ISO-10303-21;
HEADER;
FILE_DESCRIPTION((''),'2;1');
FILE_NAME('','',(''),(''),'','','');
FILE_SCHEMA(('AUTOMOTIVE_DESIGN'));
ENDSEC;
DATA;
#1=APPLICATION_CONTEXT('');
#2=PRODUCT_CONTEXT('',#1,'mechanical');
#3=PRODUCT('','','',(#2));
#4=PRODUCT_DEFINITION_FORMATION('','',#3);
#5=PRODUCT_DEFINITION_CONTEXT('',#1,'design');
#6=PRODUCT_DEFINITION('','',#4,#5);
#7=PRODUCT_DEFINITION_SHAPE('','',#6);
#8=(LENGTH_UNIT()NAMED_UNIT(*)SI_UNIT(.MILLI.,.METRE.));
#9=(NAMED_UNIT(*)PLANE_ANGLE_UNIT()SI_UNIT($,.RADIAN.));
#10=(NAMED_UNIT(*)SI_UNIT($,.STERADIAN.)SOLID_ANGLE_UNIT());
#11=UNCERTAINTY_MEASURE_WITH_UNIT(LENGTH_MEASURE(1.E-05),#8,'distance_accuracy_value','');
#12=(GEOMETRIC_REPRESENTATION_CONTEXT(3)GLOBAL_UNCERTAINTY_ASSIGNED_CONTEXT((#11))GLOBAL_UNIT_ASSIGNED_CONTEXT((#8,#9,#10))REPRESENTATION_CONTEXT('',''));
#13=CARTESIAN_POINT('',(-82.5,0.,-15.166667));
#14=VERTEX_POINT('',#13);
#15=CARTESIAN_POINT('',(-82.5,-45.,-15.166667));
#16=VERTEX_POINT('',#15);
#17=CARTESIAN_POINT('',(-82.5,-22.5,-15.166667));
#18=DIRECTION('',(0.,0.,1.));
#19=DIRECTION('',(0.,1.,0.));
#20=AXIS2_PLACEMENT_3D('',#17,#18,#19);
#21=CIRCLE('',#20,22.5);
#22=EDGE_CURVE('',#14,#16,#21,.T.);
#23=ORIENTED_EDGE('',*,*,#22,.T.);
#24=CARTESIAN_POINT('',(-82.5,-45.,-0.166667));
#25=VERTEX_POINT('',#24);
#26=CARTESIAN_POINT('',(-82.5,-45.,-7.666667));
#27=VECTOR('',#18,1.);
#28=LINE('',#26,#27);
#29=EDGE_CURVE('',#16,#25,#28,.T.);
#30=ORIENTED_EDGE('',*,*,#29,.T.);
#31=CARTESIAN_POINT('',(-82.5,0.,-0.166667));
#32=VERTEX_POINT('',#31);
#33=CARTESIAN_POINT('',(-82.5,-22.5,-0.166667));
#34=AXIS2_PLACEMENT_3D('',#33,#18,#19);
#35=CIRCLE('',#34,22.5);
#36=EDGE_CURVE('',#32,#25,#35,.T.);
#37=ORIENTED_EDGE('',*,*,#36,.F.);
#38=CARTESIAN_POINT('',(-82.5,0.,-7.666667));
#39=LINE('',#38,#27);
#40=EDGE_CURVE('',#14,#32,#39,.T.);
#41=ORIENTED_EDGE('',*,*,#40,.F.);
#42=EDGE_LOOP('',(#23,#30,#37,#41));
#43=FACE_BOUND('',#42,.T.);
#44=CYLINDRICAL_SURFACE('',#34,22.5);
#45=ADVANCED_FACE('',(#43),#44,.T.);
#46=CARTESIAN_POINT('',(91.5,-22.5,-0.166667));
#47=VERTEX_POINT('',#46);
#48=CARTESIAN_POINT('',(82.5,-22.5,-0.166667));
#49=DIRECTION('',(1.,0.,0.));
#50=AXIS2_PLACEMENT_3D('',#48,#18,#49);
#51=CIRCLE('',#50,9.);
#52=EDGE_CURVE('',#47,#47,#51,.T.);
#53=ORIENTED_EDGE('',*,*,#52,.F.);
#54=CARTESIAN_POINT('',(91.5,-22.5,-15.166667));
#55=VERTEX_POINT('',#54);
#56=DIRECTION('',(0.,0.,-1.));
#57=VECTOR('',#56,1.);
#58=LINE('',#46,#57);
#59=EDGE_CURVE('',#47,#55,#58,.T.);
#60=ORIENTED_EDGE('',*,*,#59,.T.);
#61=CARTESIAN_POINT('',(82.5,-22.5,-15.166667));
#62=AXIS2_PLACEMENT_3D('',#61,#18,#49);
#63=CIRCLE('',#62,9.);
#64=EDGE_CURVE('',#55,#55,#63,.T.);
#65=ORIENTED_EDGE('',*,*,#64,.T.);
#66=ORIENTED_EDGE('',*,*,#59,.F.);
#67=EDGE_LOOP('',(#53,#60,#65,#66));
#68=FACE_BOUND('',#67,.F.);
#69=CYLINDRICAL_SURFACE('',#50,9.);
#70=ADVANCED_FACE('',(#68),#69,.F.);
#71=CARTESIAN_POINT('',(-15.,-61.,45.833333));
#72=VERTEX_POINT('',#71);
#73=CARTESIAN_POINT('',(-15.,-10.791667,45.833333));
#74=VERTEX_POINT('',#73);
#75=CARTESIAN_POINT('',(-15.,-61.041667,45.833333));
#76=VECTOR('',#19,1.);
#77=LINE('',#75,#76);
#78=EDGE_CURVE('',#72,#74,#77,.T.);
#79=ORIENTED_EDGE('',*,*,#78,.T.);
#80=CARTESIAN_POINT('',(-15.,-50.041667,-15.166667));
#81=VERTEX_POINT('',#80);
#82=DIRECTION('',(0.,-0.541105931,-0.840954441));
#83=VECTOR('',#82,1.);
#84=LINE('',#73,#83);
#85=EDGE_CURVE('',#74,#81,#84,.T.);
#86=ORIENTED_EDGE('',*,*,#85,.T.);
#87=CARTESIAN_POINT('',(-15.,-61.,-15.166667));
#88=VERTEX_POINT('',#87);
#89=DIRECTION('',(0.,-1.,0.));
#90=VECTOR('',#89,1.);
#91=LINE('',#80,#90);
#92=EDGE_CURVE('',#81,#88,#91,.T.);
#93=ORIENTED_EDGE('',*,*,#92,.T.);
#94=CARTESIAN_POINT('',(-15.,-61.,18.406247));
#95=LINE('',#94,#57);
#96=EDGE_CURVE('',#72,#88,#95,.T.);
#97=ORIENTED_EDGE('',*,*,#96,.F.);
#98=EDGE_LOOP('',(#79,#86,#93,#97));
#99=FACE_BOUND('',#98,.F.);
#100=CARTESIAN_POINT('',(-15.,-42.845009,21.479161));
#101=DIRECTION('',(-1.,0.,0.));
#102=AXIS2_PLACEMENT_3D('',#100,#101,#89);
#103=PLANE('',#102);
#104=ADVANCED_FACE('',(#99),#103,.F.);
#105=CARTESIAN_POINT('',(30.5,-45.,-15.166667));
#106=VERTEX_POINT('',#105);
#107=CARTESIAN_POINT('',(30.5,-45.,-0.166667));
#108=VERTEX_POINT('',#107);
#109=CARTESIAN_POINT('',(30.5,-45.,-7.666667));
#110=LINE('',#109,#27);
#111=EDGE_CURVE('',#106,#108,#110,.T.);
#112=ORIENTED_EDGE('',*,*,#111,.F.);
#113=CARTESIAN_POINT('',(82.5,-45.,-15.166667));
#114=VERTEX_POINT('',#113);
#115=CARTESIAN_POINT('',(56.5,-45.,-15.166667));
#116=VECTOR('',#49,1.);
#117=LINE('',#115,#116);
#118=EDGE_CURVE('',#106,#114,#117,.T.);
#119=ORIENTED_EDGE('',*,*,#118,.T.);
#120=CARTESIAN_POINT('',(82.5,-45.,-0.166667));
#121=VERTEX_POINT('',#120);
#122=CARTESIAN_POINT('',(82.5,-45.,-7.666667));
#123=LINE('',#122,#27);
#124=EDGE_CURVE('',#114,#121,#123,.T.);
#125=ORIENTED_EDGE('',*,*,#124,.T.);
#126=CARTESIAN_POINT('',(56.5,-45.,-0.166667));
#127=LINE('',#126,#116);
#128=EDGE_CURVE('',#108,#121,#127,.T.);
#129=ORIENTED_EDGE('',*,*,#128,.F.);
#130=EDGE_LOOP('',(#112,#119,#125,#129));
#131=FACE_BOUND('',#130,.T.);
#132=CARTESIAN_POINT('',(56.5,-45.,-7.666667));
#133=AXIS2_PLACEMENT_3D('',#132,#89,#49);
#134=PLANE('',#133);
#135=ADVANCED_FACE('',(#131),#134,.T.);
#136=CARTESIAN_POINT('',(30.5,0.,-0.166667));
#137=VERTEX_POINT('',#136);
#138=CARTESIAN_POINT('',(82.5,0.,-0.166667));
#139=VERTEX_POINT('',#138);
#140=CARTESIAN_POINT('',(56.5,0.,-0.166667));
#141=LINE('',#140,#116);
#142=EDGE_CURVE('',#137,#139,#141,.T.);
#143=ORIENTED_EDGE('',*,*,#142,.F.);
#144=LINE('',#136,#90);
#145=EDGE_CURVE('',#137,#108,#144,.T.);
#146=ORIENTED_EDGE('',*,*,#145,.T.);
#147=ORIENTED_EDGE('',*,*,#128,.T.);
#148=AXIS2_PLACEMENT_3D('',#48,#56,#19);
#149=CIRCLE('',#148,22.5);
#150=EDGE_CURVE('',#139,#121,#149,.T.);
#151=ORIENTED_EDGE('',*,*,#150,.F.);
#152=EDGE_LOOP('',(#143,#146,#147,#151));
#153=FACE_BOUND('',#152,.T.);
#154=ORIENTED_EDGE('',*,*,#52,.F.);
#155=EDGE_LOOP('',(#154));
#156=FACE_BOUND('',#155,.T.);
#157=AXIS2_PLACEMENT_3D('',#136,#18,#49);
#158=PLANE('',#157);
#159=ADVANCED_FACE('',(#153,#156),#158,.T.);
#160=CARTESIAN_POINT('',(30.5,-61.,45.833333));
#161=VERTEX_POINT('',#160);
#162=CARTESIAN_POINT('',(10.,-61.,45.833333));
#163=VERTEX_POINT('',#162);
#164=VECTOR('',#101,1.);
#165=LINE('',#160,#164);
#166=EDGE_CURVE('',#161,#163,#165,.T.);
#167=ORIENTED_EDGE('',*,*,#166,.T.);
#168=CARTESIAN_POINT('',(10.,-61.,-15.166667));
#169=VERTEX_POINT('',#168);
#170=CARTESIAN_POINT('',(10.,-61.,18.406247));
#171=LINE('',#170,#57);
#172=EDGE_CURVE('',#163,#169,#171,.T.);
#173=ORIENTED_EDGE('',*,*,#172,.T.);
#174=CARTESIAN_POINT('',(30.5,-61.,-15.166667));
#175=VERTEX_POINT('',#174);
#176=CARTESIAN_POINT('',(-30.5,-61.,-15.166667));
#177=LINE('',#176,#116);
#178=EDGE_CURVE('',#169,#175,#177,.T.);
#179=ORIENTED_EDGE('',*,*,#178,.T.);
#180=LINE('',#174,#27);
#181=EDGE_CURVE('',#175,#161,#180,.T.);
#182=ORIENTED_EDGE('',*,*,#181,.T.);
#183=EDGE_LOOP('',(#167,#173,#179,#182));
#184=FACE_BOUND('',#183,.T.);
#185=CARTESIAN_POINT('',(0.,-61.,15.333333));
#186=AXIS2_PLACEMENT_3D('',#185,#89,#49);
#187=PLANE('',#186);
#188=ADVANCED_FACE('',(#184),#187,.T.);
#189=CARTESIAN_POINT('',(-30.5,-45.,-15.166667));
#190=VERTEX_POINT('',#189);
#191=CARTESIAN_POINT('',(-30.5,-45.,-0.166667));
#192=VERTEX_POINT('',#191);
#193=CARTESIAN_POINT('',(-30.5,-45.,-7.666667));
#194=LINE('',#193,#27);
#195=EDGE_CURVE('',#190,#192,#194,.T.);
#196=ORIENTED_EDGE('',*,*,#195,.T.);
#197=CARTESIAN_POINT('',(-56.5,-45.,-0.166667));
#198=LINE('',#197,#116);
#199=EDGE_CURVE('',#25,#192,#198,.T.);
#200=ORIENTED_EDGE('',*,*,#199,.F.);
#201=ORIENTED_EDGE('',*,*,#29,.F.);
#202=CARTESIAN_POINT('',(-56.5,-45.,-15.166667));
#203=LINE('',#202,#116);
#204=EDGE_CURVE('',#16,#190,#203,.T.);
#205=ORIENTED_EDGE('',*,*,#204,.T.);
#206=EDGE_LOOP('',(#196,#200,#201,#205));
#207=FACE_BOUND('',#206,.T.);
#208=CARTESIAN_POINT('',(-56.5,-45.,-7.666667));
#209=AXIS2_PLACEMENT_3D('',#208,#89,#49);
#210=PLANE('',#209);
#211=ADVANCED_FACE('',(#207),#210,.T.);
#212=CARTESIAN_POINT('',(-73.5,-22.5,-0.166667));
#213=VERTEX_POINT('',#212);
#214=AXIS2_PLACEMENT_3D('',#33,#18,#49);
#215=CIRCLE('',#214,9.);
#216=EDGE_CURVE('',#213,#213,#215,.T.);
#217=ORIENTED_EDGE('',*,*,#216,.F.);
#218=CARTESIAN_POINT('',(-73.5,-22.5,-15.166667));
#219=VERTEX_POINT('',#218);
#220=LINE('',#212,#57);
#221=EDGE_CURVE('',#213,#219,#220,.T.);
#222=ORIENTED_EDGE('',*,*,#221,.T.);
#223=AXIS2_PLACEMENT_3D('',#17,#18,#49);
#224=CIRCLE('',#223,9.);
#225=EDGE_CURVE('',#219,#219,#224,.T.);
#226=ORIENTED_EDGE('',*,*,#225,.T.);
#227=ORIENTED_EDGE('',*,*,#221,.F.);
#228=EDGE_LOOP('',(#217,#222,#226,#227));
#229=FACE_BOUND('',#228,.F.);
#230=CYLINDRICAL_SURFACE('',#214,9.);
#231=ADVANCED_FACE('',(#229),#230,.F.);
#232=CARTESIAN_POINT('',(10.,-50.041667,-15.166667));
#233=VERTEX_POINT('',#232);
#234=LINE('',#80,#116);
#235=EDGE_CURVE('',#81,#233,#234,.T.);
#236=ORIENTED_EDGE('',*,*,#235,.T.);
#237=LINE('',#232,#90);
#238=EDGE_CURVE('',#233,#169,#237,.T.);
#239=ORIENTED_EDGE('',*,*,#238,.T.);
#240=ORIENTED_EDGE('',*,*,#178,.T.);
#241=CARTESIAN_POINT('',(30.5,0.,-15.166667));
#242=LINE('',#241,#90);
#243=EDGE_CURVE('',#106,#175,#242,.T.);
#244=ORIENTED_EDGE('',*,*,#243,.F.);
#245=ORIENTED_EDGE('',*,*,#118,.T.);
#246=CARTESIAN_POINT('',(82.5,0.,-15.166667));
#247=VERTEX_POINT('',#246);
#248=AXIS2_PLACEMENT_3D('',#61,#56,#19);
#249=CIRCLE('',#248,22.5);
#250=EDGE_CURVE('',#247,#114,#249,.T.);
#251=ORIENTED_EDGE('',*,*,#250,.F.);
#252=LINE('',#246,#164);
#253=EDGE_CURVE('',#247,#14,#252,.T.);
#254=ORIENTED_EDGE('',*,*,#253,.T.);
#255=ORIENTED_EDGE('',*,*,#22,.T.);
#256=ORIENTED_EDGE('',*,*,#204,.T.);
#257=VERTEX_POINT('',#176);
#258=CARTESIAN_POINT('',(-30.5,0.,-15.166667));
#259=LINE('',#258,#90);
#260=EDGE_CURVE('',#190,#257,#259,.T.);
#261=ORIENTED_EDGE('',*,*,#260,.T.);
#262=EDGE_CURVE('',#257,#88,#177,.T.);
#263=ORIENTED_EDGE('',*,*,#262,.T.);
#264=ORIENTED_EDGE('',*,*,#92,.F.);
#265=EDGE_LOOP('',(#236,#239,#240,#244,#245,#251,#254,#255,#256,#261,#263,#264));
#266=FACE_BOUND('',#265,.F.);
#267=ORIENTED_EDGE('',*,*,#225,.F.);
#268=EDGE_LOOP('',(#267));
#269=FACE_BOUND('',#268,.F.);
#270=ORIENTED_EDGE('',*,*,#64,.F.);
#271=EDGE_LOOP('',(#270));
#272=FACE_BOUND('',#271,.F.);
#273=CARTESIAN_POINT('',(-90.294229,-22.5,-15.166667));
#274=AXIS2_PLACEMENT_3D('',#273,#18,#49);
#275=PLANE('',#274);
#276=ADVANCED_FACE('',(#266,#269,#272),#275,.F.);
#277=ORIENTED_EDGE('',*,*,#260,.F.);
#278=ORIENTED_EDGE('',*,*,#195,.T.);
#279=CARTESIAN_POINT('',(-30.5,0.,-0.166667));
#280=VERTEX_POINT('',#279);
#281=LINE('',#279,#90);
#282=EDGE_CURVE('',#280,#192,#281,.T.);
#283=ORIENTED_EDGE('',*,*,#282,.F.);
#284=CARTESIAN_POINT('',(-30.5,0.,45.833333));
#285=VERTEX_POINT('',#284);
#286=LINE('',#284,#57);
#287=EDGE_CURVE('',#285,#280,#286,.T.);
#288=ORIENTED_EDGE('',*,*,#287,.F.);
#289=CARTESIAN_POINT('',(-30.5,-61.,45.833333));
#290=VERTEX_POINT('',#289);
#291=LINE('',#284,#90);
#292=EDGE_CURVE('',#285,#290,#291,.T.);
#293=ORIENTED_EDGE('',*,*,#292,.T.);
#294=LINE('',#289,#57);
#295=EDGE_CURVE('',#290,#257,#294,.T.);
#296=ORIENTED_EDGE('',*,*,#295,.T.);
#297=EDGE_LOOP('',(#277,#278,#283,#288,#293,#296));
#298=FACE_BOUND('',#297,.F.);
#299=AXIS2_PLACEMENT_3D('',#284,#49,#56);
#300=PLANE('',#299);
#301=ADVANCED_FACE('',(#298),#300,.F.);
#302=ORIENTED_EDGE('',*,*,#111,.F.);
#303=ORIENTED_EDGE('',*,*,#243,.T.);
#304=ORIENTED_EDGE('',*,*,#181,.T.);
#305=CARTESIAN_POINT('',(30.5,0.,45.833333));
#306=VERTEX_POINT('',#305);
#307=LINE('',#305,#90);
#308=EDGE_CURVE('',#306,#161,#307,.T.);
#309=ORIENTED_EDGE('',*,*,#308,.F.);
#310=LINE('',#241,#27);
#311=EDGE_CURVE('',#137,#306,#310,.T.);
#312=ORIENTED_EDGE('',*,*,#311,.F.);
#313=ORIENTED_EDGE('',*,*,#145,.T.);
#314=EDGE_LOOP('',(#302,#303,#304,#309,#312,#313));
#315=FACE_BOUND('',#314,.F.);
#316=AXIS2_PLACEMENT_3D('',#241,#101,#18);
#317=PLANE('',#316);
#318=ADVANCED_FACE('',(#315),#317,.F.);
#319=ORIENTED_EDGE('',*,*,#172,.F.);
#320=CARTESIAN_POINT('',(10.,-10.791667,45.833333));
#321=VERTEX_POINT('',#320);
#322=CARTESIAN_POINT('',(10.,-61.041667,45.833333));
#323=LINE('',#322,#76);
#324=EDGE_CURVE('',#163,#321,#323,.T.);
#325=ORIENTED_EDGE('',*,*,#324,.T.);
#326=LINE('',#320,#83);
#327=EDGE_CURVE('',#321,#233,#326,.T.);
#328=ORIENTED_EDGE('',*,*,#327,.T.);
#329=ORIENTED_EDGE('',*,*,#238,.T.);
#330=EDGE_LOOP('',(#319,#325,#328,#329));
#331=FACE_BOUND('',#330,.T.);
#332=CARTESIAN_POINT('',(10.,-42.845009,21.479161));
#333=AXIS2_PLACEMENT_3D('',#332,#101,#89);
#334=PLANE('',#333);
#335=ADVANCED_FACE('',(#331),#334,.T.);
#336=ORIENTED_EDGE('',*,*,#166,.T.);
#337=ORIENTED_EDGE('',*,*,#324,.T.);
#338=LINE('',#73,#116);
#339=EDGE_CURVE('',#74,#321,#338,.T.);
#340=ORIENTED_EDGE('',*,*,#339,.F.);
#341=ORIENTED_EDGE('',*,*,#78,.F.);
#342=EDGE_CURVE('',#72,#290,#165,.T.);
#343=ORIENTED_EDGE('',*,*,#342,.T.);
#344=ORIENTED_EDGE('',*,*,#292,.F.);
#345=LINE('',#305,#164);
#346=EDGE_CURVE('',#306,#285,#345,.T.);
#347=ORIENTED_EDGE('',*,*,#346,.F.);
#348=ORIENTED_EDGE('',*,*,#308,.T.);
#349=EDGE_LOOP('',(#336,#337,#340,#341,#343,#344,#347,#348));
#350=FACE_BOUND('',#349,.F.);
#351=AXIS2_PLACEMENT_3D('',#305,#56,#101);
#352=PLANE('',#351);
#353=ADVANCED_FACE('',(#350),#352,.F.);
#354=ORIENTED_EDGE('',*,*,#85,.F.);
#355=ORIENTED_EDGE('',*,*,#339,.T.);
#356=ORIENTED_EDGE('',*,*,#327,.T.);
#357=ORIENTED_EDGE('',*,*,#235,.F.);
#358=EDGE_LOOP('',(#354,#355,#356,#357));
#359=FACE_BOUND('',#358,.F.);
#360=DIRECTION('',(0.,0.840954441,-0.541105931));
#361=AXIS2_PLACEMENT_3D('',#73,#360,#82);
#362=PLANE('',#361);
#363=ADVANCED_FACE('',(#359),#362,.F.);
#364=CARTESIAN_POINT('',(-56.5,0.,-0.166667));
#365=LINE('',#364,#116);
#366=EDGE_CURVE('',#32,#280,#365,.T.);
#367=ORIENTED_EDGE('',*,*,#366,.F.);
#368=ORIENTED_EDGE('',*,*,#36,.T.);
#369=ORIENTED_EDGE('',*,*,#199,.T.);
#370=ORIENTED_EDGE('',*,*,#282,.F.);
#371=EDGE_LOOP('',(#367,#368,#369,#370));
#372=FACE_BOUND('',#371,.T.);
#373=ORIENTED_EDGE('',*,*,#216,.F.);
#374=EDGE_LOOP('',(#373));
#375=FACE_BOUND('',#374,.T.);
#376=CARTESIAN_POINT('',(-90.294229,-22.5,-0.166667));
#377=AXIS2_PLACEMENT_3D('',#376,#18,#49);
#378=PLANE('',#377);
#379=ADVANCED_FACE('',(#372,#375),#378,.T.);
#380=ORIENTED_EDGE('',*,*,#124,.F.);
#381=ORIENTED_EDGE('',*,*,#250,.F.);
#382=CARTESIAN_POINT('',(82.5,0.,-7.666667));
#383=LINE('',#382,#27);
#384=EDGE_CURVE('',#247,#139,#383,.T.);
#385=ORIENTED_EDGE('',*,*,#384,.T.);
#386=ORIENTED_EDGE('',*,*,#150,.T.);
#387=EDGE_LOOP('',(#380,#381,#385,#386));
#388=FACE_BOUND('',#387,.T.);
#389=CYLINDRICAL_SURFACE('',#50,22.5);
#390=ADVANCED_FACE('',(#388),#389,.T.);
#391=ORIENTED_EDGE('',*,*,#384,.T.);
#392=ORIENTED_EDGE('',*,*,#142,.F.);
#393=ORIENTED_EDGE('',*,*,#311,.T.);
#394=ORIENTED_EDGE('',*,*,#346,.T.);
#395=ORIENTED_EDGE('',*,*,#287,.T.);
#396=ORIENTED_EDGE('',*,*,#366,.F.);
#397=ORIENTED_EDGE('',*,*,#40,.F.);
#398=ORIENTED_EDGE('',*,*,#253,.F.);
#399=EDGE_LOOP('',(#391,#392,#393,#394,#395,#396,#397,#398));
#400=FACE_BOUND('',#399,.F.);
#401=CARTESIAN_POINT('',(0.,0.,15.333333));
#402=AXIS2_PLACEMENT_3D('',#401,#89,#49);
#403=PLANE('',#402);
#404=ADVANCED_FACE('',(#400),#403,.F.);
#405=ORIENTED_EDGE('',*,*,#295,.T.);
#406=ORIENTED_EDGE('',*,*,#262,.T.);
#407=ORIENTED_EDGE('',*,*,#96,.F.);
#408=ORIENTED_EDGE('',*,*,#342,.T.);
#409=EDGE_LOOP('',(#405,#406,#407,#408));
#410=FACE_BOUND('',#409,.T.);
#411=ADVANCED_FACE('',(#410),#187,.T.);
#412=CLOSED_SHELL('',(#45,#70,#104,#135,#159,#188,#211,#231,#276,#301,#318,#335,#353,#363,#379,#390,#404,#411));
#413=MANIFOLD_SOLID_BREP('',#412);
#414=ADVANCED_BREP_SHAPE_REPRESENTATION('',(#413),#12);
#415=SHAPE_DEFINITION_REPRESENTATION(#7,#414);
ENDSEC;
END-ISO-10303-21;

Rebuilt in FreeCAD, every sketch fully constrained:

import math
import FreeCAD as App
import Part
import Sketcher

V = App.Vector
Q = App.Units.Quantity

doc = App.newDocument("Part")
body = doc.addObject("PartDesign::Body", "Body")

sketch1 = body.newObject("Sketcher::SketchObject", "Sketch")
sketch1.AttachmentSupport = (doc.getObject("XZ_Plane"), [""])
sketch1.MapMode = "FlatFace"
sketch1.addGeometry([
    Part.LineSegment(V(-82, 0, 0), V(-82, -15, 0)),
    Part.LineSegment(V(-82, -15, 0), V(-30, -15, 0)),
    Part.LineSegment(V(-30, -15, 0), V(-30, 0, 0)),
    Part.LineSegment(V(-30, 0, 0), V(-82, 0, 0)),
], False)
sketch1.addConstraint([
    Sketcher.Constraint("Coincident", 0, 2, 1, 1),
    Sketcher.Constraint("Coincident", 1, 2, 2, 1),
    Sketcher.Constraint("Coincident", 2, 2, 3, 1),
    Sketcher.Constraint("Coincident", 3, 2, 0, 1),
    Sketcher.Constraint("Vertical", 0),
    Sketcher.Constraint("Horizontal", 1),
    Sketcher.Constraint("Vertical", 2),
    Sketcher.Constraint("Horizontal", 3),
    Sketcher.Constraint("DistanceX", 1, 1, 1, 2, Q("52 mm")),
    Sketcher.Constraint("DistanceY", 0, 2, 0, 1, Q("15 mm")),
    Sketcher.Constraint("DistanceX", 0, 2, -1, 1, Q("82.5 mm")),
    Sketcher.Constraint("DistanceY", 0, 2, -1, 1, Q("15.166667 mm")),
])
pad1 = body.newObject("PartDesign::Pad", "Pad")
pad1.Profile = sketch1
pad1.Length = 45
body2 = doc.addObject("PartDesign::Body", "Body001")

sketch2 = body2.newObject("Sketcher::SketchObject", "Sketch001")
sketch2.AttachmentSupport = (doc.getObject("XZ_Plane001"), [""])
sketch2.MapMode = "FlatFace"
sketch2.addGeometry([
    Part.LineSegment(V(30, 0, 0), V(30, -15, 0)),
    Part.LineSegment(V(30, -15, 0), V(82, -15, 0)),
    Part.LineSegment(V(82, -15, 0), V(82, 0, 0)),
    Part.LineSegment(V(82, 0, 0), V(30, 0, 0)),
], False)
sketch2.addConstraint([
    Sketcher.Constraint("Coincident", 0, 2, 1, 1),
    Sketcher.Constraint("Coincident", 1, 2, 2, 1),
    Sketcher.Constraint("Coincident", 2, 2, 3, 1),
    Sketcher.Constraint("Coincident", 3, 2, 0, 1),
    Sketcher.Constraint("Vertical", 0),
    Sketcher.Constraint("Horizontal", 1),
    Sketcher.Constraint("Vertical", 2),
    Sketcher.Constraint("Horizontal", 3),
    Sketcher.Constraint("DistanceX", 1, 1, 1, 2, Q("52 mm")),
    Sketcher.Constraint("DistanceY", 0, 2, 0, 1, Q("15 mm")),
    Sketcher.Constraint("DistanceX", -1, 1, 0, 2, Q("30.5 mm")),
    Sketcher.Constraint("DistanceY", 0, 2, -1, 1, Q("15.166667 mm")),
])
pad2 = body2.newObject("PartDesign::Pad", "Pad001")
pad2.Profile = sketch2
pad2.Length = 45
body.AllowCompound = True
doc.recompute()

boolean = body.newObject("PartDesign::Boolean", "Boolean")
boolean.Type = "Fuse"
boolean.addObjects([body2])

sketch3 = body.newObject("Sketcher::SketchObject", "Sketch002")
sketch3.AttachmentSupport = (doc.getObject("XZ_Plane"), [""])
sketch3.MapMode = "FlatFace"
sketch3.addGeometry([
    Part.LineSegment(V(30, 46, 0), V(-30, 46, 0)),
    Part.LineSegment(V(-30, 46, 0), V(-30, -15, 0)),
    Part.LineSegment(V(-30, -15, 0), V(30, -15, 0)),
    Part.LineSegment(V(30, -15, 0), V(30, 46, 0)),
], False)
sketch3.addConstraint([
    Sketcher.Constraint("Coincident", 0, 2, 1, 1),
    Sketcher.Constraint("Coincident", 1, 2, 2, 1),
    Sketcher.Constraint("Coincident", 2, 2, 3, 1),
    Sketcher.Constraint("Coincident", 3, 2, 0, 1),
    Sketcher.Constraint("Horizontal", 0),
    Sketcher.Constraint("Vertical", 1),
    Sketcher.Constraint("Horizontal", 2),
    Sketcher.Constraint("Vertical", 3),
    Sketcher.Constraint("Equal", 2, 1),
    Sketcher.Constraint("DistanceX", 0, 2, 0, 1, Q("61 mm")),
    Sketcher.Constraint("DistanceX", 0, 2, -1, 1, Q("30.5 mm")),
    Sketcher.Constraint("DistanceY", -1, 1, 0, 2, Q("45.833333 mm")),
])
pad3 = body.newObject("PartDesign::Pad", "Pad002")
pad3.Profile = sketch3
pad3.Length = 61

sketch4 = body.newObject("Sketcher::SketchObject", "Sketch003")
sketch4.AttachmentSupport = (doc.getObject("XY_Plane"), [""])
sketch4.MapMode = "FlatFace"
sketch4.AttachmentOffset = App.Placement(V(0, 0, -0.166667), App.Rotation())
sketch4.addGeometry([
    Part.LineSegment(V(-82, -45, 0), V(-82, 0, 0)),
    Part.ArcOfCircle(Part.Circle(V(-82, -22, 0), V(0, 0, 1), 22), math.radians(90), math.radians(270)),
    Part.Circle(V(82, -22, 0), V(0, 0, 1), 22),
], False)
sketch4.addConstraint([
    Sketcher.Constraint("Coincident", 0, 1, 1, 2),
    Sketcher.Constraint("Coincident", 1, 1, 0, 2),
    Sketcher.Constraint("Vertical", 0),
    Sketcher.Constraint("Equal", 1, 2),
    Sketcher.Constraint("Symmetric", 1, 3, 2, 3, -2),
    Sketcher.Constraint("PointOnObject", 1, 1, -1),
    Sketcher.Constraint("Vertical", 1, 3, 0, 1),
    Sketcher.Constraint("Diameter", 2, Q("45 mm")),
    Sketcher.Constraint("DistanceX", 1, 3, 2, 3, Q("165 mm")),
])
pad4 = body.newObject("PartDesign::Pad", "Pad003")
pad4.Profile = sketch4
pad4.Length = 15
pad4.Reversed = True

sketch5 = body.newObject("Sketcher::SketchObject", "Sketch004")
sketch5.AttachmentSupport = (doc.getObject("XY_Plane"), [""])
sketch5.MapMode = "FlatFace"
sketch5.AttachmentOffset = App.Placement(V(0, 0, -0.166667), App.Rotation())
sketch5.addGeometry([
    Part.Circle(V(82, -22, 0), V(0, 0, 1), 9),
    Part.Circle(V(-82, -22, 0), V(0, 0, 1), 9),
], False)
sketch5.addConstraint([
    Sketcher.Constraint("Equal", 0, 1),
    Sketcher.Constraint("Symmetric", 0, 3, 1, 3, -2),
    Sketcher.Constraint("Diameter", 0, Q("18 mm")),
    Sketcher.Constraint("DistanceX", 1, 3, 0, 3, Q("165 mm")),
    Sketcher.Constraint("DistanceY", 0, 3, -1, 1, Q("22.5 mm")),
])
pocket1 = body.newObject("PartDesign::Pocket", "Pocket")
pocket1.Profile = sketch5
pocket1.Length = 25

sketch6 = body.newObject("Sketcher::SketchObject", "Sketch005")
sketch6.AttachmentSupport = (doc.getObject("YZ_Plane"), [""])
sketch6.MapMode = "FlatFace"
sketch6.AttachmentOffset = App.Placement(V(0, 0, -15), App.Rotation())
sketch6.addGeometry([
    Part.LineSegment(V(-61, 46, 0), V(-11, 46, 0)),
    Part.LineSegment(V(-11, 46, 0), V(-50, -15, 0)),
    Part.LineSegment(V(-50, -15, 0), V(-61, -15, 0)),
    Part.LineSegment(V(-61, -15, 0), V(-61, 46, 0)),
], False)
sketch6.addConstraint([
    Sketcher.Constraint("Coincident", 0, 2, 1, 1),
    Sketcher.Constraint("Coincident", 1, 2, 2, 1),
    Sketcher.Constraint("Coincident", 2, 2, 3, 1),
    Sketcher.Constraint("Coincident", 3, 2, 0, 1),
    Sketcher.Constraint("Horizontal", 0),
    Sketcher.Constraint("Horizontal", 2),
    Sketcher.Constraint("Vertical", 3),
    Sketcher.Constraint("DistanceX", 2, 2, 2, 1, Q("11 mm")),
    Sketcher.Constraint("DistanceY", 3, 1, 3, 2, Q("61 mm")),
    Sketcher.Constraint("DistanceX", 0, 1, 0, 2, Q("50.25 mm")),
    Sketcher.Constraint("DistanceX", 0, 2, -1, 1, Q("10.791667 mm")),
    Sketcher.Constraint("DistanceY", -1, 1, 0, 2, Q("45.833333 mm")),
])
pocket2 = body.newObject("PartDesign::Pocket", "Pocket001")
pocket2.Profile = sketch6
pocket2.Length = 25
pocket2.Reversed = True

doc.recompute()
